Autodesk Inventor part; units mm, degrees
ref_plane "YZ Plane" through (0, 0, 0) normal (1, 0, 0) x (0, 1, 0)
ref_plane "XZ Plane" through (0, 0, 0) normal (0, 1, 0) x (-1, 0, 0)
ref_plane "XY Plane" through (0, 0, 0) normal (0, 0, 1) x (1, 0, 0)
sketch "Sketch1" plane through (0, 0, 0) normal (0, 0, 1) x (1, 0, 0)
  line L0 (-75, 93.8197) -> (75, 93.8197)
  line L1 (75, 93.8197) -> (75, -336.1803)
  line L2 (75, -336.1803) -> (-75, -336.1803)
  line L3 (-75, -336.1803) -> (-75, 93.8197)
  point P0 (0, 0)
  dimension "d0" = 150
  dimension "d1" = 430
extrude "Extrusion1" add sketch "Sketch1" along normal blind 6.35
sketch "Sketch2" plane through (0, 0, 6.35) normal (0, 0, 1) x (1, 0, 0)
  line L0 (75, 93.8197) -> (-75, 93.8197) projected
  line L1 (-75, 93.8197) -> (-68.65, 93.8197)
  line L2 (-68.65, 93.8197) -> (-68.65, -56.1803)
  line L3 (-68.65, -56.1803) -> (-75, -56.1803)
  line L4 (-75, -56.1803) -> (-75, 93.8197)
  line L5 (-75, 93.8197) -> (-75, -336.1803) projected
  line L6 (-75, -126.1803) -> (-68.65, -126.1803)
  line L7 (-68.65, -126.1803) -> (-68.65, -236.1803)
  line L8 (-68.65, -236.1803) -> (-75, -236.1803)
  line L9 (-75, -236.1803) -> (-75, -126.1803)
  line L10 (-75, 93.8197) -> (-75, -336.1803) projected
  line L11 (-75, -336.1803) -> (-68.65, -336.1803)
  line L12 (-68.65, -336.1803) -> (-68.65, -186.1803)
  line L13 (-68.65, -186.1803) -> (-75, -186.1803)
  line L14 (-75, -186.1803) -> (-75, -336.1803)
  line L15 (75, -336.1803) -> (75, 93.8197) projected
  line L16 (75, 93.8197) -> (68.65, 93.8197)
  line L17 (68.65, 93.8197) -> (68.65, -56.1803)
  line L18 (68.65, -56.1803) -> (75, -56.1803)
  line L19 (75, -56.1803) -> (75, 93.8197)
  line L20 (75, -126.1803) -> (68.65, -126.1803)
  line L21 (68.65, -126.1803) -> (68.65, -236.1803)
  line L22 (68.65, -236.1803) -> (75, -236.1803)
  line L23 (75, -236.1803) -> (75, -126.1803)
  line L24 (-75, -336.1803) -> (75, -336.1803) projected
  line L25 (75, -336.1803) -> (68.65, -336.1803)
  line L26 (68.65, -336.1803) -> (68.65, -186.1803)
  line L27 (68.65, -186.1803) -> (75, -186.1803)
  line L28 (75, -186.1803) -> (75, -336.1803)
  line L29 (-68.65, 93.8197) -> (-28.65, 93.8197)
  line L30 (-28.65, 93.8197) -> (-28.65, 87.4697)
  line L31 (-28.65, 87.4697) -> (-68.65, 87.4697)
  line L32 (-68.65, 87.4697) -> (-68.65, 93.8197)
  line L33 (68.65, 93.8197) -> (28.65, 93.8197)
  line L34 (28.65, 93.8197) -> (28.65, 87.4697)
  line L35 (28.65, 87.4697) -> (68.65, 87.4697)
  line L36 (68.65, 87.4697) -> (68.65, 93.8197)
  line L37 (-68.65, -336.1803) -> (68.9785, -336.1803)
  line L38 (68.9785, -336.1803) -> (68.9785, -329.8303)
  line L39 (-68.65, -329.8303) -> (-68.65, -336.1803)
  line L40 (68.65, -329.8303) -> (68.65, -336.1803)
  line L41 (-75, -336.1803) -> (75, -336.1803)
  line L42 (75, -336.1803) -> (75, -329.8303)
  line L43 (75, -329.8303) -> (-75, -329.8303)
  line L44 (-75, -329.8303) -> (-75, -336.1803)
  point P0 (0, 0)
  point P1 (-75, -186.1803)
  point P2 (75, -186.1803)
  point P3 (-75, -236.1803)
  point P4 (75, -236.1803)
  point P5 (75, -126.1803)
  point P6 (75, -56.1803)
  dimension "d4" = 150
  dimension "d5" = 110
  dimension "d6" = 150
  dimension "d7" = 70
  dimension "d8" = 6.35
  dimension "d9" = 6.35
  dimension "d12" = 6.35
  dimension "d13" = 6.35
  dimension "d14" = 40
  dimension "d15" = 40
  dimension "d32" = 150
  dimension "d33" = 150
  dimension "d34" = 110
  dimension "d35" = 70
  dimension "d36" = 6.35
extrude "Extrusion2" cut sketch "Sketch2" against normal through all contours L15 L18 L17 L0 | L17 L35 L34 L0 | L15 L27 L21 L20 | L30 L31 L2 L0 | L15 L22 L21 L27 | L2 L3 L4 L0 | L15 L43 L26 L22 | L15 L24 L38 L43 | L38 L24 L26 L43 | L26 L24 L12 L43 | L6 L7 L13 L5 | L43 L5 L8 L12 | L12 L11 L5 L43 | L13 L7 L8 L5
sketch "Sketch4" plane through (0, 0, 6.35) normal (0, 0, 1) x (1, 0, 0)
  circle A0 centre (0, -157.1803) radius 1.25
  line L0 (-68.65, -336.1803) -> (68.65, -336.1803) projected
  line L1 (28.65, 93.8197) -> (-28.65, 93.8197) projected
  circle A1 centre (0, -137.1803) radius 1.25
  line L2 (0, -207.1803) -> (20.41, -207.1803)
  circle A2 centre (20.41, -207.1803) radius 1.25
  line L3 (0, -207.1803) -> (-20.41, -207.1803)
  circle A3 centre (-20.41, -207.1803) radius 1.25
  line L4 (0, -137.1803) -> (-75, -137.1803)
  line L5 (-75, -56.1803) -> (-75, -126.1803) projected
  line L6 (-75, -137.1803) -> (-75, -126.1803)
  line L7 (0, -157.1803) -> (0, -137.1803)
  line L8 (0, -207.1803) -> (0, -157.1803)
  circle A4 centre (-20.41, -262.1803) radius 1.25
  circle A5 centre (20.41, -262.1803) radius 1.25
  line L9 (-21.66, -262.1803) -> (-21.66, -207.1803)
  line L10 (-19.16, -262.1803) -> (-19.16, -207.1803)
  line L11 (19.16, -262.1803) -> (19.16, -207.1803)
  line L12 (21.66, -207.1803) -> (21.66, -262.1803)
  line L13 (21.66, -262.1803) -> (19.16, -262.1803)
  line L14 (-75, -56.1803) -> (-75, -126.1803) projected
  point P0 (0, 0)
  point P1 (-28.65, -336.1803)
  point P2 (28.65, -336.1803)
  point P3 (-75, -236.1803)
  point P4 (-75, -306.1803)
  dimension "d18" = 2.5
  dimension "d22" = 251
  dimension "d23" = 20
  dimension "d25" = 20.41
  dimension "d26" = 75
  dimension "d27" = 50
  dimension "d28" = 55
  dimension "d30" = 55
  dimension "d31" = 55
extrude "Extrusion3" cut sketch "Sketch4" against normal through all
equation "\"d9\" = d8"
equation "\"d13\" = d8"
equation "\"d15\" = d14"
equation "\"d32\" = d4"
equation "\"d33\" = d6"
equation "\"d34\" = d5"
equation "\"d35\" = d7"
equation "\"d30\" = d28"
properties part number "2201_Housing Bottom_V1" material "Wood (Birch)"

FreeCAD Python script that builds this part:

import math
import FreeCAD as App
import Part
import Sketcher

V = App.Vector
Q = App.Units.Quantity

doc = App.newDocument("Part")
body = doc.addObject("PartDesign::Body", "Body")

sketch1 = body.newObject("Sketcher::SketchObject", "Sketch")
sketch1.AttachmentSupport = (doc.getObject("XY_Plane"), [""])
sketch1.MapMode = "FlatFace"
sketch1.addGeometry([
    Part.LineSegment(V(75, 94, 0), V(-75, 94, 0)),
    Part.LineSegment(V(-75, 94, 0), V(-75, -336, 0)),
    Part.LineSegment(V(-75, -336, 0), V(75, -336, 0)),
    Part.LineSegment(V(75, -336, 0), V(75, 94, 0)),
], False)
sketch1.addConstraint([
    Sketcher.Constraint("Coincident", 0, 2, 1, 1),
    Sketcher.Constraint("Coincident", 1, 2, 2, 1),
    Sketcher.Constraint("Coincident", 2, 2, 3, 1),
    Sketcher.Constraint("Coincident", 3, 2, 0, 1),
    Sketcher.Constraint("Horizontal", 0),
    Sketcher.Constraint("Vertical", 1),
    Sketcher.Constraint("Horizontal", 2),
    Sketcher.Constraint("Vertical", 3),
    Sketcher.Constraint("DistanceX", 0, 2, 0, 1, Q("150 mm")),
    Sketcher.Constraint("DistanceY", 1, 2, 1, 1, Q("430 mm")),
    Sketcher.Constraint("DistanceX", 0, 2, -1, 1, Q("75 mm")),
    Sketcher.Constraint("DistanceY", -1, 1, 0, 2, Q("93.8197 mm")),
])
pad1 = body.newObject("PartDesign::Pad", "Pad")
pad1.Profile = sketch1
pad1.Length = 6.35

sketch2 = body.newObject("Sketcher::SketchObject", "Sketch001")
sketch2.AttachmentSupport = (doc.getObject("XY_Plane"), [""])
sketch2.MapMode = "FlatFace"
sketch2.AttachmentOffset = App.Placement(V(0, 0, 6.35), App.Rotation())
sketch2.addGeometry([
    Part.LineSegment(V(75, -56, 0), V(75, 94, 0)),
    Part.LineSegment(V(75, 94, 0), V(29, 94, 0)),
    Part.LineSegment(V(29, 94, 0), V(29, 87, 0)),
    Part.LineSegment(V(29, 87, 0), V(69, 87, 0)),
    Part.LineSegment(V(69, 87, 0), V(69, -56, 0)),
    Part.LineSegment(V(69, -56, 0), V(75, -56, 0)),
    Part.LineSegment(V(75, -126, 0), V(69, -126, 0)),
    Part.LineSegment(V(69, -126, 0), V(69, -330, 0)),
    Part.LineSegment(V(69, -330, 0), V(-69, -330, 0)),
    Part.LineSegment(V(-69, -330, 0), V(-69, -126, 0)),
    Part.LineSegment(V(-69, -126, 0), V(-75, -126, 0)),
    Part.LineSegment(V(-75, -126, 0), V(-75, -336, 0)),
    Part.LineSegment(V(-75, -336, 0), V(75, -336, 0)),
    Part.LineSegment(V(75, -336, 0), V(75, -126, 0)),
    Part.LineSegment(V(-29, 87, 0), V(-29, 94, 0)),
    Part.LineSegment(V(-29, 94, 0), V(-75, 94, 0)),
    Part.LineSegment(V(-75, 94, 0), V(-75, -56, 0)),
    Part.LineSegment(V(-75, -56, 0), V(-69, -56, 0)),
    Part.LineSegment(V(-69, -56, 0), V(-69, 87, 0)),
    Part.LineSegment(V(-69, 87, 0), V(-29, 87, 0)),
], False)
sketch2.addConstraint([
    Sketcher.Constraint("Coincident", 0, 2, 1, 1),
    Sketcher.Constraint("Coincident", 1, 2, 2, 1),
    Sketcher.Constraint("Coincident", 2, 2, 3, 1),
    Sketcher.Constraint("Coincident", 3, 2, 4, 1),
    Sketcher.Constraint("Coincident", 4, 2, 5, 1),
    Sketcher.Constraint("Coincident", 5, 2, 0, 1),
    Sketcher.Constraint("Coincident", 6, 2, 7, 1),
    Sketcher.Constraint("Coincident", 7, 2, 8, 1),
    Sketcher.Constraint("Coincident", 8, 2, 9, 1),
    Sketcher.Constraint("Coincident", 9, 2, 10, 1),
    Sketcher.Constraint("Coincident", 10, 2, 11, 1),
    Sketcher.Constraint("Coincident", 11, 2, 12, 1),
    Sketcher.Constraint("Coincident", 12, 2, 13, 1),
    Sketcher.Constraint("Coincident", 13, 2, 6, 1),
    Sketcher.Constraint("Coincident", 14, 2, 15, 1),
    Sketcher.Constraint("Coincident", 15, 2, 16, 1),
    Sketcher.Constraint("Coincident", 16, 2, 17, 1),
    Sketcher.Constraint("Coincident", 17, 2, 18, 1),
    Sketcher.Constraint("Coincident", 18, 2, 19, 1),
    Sketcher.Constraint("Coincident", 19, 2, 14, 1),
    Sketcher.Constraint("Vertical", 0),
    Sketcher.Constraint("Horizontal", 1),
    Sketcher.Constraint("Vertical", 2),
    Sketcher.Constraint("Horizontal", 3),
    Sketcher.Constraint("Vertical", 4),
    Sketcher.Constraint("Horizontal", 5),
    Sketcher.Constraint("Horizontal", 6),
    Sketcher.Constraint("Vertical", 7),
    Sketcher.Constraint("Horizontal", 8),
    Sketcher.Constraint("Vertical", 9),
    Sketcher.Constraint("Horizontal", 10),
    Sketcher.Constraint("Vertical", 11),
    Sketcher.Constraint("Horizontal", 12),
    Sketcher.Constraint("Vertical", 13),
    Sketcher.Constraint("Vertical", 14),
    Sketcher.Constraint("Horizontal", 15),
    Sketcher.Constraint("Vertical", 16),
    Sketcher.Constraint("Horizontal", 17),
    Sketcher.Constraint("Vertical", 18),
    Sketcher.Constraint("Horizontal", 19),
    Sketcher.Constraint("Symmetric", 6, 2, 9, 2, -2),
    Sketcher.Constraint("Symmetric", 1, 2, 14, 2, -2),
    Sketcher.Constraint("Symmetric", 5, 2, 16, 2, -2),
    Sketcher.Constraint("Symmetric", 3, 2, 18, 2, -2),
    Sketcher.Constraint("Vertical", 4, 2, 6, 2),
    Sketcher.Constraint("Vertical", 5, 2, 12, 2),
    Sketcher.Constraint("Vertical", 11, 2, 15, 2),
    Sketcher.Constraint("Equal", 12, 0),
    Sketcher.Constraint("Equal", 17, 2),
    Sketcher.Constraint("DistanceX", 3, 1, 3, 2, Q("40 mm")),
    Sketcher.Constraint("DistanceX", 12, 1, 12, 2, Q("150 mm")),
    Sketcher.Constraint("DistanceY", 6, 2, 4, 2, Q("70 mm")),
    Sketcher.Constraint("DistanceX", 5, 1, 5, 2, Q("6.35 mm")),
    Sketcher.Constraint("DistanceY", 11, 2, 11, 1, Q("210 mm")),
    Sketcher.Constraint("DistanceY", 11, 2, 8, 2, Q("6.35 mm")),
    Sketcher.Constraint("DistanceY", -1, 1, 0, 2, Q("93.8197 mm")),
])
pocket1 = body.newObject("PartDesign::Pocket", "Pocket")
pocket1.Profile = sketch2
pocket1.Type = "ThroughAll"

sketch3 = body.newObject("Sketcher::SketchObject", "Sketch002")
sketch3.AttachmentSupport = (doc.getObject("XY_Plane"), [""])
sketch3.MapMode = "FlatFace"
sketch3.AttachmentOffset = App.Placement(V(0, 0, 6.35), App.Rotation())
sketch3.addGeometry([
    Part.Circle(V(0, -157.2, 0), V(0, 0, 1), 1.2),
    Part.ArcOfCircle(Part.Circle(V(20.4, -207.2, 0), V(0, 0, 1), 1.2), math.radians(0), math.radians(180)),
    Part.LineSegment(V(19.2, -207.2, 0), V(19.2, -262.2, 0)),
    Part.ArcOfCircle(Part.Circle(V(20.4, -262.2, 0), V(0, 0, 1), 1.2), math.radians(180), math.radians(360)),
    Part.LineSegment(V(21.7, -262.2, 0), V(21.7, -207.2, 0)),
    Part.LineSegment(V(-19.2, -262.2, 0), V(-19.2, -207.2, 0)),
    Part.ArcOfCircle(Part.Circle(V(-20.4, -207.2, 0), V(0, 0, 1), 1.2), math.radians(0), math.radians(180)),
    Part.LineSegment(V(-21.7, -207.2, 0), V(-21.7, -262.2, 0)),
    Part.ArcOfCircle(Part.Circle(V(-20.4, -262.2, 0), V(0, 0, 1), 1.2), math.radians(180), math.radians(360)),
    Part.Circle(V(0, -137.2, 0), V(0, 0, 1), 1.2),
], False)
sketch3.addConstraint([
    Sketcher.Constraint("Tangent", 1, 2, 2, 1),
    Sketcher.Constraint("Tangent", 2, 2, 3, 1),
    Sketcher.Constraint("Tangent", 3, 2, 4, 1),
    Sketcher.Constraint("Tangent", 4, 2, 1, 1),
    Sketcher.Constraint("Tangent", 5, 2, 6, 1),
    Sketcher.Constraint("Tangent", 6, 2, 7, 1),
    Sketcher.Constraint("Tangent", 7, 2, 8, 1),
    Sketcher.Constraint("Tangent", 8, 2, 5, 1),
    Sketcher.Constraint("Vertical", 2),
    Sketcher.Constraint("Vertical", 4),
    Sketcher.Constraint("Vertical", 5),
    Sketcher.Constraint("Vertical", 7),
    Sketcher.Constraint("Equal", 0, 1),
    Sketcher.Constraint("Equal", 3, 6),
    Sketcher.Constraint("Equal", 8, 9),
    Sketcher.Constraint("Symmetric", 1, 3, 6, 3, -2),
    Sketcher.Constraint("PointOnObject", 0, 3, -2),
    Sketcher.Constraint("PointOnObject", 9, 3, -2),
    Sketcher.Constraint("Horizontal", 3, 3, 8, 3),
    Sketcher.Constraint("Diameter", 0, Q("2.5 mm")),
    Sketcher.Constraint("DistanceY", 2, 2, 2, 1, Q("55 mm")),
    Sketcher.Constraint("DistanceY", 1, 3, 0, 3, Q("50 mm")),
    Sketcher.Constraint("DistanceY", 0, 3, 9, 3, Q("20 mm")),
    Sketcher.Constraint("DistanceX", -1, 1, 1, 3, Q("20.41 mm")),
    Sketcher.Constraint("DistanceY", 0, 3, -1, 1, Q("157.1803 mm")),
])
pocket2 = body.newObject("PartDesign::Pocket", "Pocket001")
pocket2.Profile = sketch3
pocket2.Type = "ThroughAll"

doc.recompute()
